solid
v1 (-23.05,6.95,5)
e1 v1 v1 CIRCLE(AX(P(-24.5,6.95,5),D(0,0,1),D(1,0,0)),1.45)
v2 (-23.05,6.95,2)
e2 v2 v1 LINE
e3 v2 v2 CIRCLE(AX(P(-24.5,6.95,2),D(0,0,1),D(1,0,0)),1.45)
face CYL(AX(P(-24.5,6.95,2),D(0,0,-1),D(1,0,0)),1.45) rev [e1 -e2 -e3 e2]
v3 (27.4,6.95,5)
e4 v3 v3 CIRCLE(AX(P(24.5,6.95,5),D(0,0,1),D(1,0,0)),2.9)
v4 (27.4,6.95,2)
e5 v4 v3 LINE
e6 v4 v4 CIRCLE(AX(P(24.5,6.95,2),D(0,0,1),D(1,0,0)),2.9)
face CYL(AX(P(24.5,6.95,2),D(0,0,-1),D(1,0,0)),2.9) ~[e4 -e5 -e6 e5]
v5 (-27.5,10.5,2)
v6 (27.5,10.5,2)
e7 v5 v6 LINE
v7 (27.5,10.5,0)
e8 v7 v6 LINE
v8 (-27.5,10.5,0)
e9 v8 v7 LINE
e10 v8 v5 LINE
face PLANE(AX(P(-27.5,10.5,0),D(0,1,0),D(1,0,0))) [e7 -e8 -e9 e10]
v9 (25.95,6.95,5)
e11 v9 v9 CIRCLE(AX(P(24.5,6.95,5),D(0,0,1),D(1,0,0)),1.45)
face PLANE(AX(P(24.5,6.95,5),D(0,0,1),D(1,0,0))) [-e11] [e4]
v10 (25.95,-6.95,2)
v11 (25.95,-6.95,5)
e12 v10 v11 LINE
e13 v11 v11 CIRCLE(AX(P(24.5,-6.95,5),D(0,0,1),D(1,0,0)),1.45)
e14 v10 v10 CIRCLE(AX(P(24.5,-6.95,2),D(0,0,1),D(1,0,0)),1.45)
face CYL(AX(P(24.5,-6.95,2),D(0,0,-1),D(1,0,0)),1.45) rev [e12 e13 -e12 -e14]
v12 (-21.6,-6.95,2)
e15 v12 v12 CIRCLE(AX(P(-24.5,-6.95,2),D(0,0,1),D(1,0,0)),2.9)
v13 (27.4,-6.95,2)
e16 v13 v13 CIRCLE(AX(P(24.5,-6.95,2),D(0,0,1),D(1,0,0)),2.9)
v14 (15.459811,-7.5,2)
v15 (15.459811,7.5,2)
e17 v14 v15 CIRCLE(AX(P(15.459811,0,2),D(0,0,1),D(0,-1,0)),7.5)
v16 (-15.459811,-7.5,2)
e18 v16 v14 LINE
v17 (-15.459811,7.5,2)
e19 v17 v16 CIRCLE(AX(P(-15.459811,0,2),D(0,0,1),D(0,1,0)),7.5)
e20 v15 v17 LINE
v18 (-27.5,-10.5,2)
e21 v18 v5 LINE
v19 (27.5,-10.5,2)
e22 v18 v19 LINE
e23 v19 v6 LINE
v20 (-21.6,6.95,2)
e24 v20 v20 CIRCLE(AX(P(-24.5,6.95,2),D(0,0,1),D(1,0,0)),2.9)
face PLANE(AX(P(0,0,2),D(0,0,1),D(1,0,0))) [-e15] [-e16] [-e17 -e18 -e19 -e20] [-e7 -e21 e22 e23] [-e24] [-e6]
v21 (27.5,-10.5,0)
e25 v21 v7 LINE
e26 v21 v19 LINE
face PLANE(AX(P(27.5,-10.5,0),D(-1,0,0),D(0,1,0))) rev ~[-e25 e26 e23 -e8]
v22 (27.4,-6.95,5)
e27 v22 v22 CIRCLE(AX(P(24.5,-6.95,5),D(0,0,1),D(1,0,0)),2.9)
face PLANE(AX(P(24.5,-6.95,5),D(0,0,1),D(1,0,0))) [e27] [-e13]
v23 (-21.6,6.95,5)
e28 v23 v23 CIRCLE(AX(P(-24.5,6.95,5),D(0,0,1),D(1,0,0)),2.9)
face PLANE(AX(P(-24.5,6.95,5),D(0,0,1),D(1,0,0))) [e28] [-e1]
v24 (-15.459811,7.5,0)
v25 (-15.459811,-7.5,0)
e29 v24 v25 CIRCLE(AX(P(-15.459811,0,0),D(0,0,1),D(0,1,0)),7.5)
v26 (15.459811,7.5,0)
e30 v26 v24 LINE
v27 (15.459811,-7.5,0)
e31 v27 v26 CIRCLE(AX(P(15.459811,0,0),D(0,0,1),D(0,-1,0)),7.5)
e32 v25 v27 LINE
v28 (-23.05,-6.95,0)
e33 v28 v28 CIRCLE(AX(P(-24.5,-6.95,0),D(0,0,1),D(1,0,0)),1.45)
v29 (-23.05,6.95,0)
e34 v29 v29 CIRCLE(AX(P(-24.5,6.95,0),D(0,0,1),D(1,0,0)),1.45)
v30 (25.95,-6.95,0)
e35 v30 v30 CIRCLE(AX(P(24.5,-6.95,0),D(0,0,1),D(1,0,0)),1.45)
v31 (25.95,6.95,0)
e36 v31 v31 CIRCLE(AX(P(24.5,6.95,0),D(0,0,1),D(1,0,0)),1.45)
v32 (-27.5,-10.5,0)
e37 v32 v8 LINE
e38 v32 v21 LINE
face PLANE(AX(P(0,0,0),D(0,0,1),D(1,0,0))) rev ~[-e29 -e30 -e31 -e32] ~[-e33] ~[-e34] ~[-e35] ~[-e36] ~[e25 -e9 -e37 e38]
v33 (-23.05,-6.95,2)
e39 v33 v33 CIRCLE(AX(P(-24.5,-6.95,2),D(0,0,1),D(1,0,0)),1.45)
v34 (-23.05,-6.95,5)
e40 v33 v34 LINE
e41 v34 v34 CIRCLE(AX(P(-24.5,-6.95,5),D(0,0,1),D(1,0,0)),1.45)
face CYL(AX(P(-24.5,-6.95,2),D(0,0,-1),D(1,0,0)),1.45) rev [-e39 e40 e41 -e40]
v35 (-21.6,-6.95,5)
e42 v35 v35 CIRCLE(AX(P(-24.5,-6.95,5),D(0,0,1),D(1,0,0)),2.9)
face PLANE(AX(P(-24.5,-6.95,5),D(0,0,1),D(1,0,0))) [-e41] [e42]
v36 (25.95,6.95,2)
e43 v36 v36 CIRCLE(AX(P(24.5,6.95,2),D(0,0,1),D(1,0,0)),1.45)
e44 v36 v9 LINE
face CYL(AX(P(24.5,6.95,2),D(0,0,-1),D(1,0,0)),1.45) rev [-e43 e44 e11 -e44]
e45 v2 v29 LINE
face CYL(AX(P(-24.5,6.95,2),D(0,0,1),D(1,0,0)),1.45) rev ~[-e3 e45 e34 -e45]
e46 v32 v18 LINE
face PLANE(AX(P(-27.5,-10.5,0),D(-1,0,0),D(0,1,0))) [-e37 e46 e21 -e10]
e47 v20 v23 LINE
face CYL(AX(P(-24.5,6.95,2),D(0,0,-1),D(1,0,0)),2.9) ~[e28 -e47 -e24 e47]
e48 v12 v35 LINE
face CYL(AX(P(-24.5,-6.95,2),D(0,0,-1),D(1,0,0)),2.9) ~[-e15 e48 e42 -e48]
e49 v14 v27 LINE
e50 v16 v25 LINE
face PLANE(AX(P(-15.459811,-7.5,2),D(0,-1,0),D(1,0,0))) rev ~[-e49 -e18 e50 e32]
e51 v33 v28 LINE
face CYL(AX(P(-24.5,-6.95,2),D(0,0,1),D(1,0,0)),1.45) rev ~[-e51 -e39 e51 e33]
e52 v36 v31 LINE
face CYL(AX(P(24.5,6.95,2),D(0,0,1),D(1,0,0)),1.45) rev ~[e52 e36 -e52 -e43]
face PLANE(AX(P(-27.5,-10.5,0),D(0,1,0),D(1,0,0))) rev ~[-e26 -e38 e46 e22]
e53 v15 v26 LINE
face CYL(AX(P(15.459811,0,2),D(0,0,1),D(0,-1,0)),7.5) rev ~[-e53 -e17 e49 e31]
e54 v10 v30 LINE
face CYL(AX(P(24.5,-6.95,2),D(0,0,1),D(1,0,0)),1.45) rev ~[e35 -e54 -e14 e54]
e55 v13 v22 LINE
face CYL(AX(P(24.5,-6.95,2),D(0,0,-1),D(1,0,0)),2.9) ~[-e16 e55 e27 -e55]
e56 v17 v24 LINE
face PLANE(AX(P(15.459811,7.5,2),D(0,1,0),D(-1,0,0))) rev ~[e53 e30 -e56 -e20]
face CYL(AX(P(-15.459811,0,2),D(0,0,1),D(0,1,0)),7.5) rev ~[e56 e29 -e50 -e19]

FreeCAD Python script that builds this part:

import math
import FreeCAD as App
import Part
import Sketcher


def add_polygon(sketch, points):
    """Adds a closed chain of lines whose ends are joined by coincident constraints."""
    first, n = sketch.GeometryCount, len(points)
    for a, b in zip(points, points[1:] + points[:1]):
        sketch.addGeometry(Part.LineSegment(App.Vector(*a, 0), App.Vector(*b, 0)), False)
    for i in range(n):
        sketch.addConstraint(Sketcher.Constraint("Coincident", first + i, 2, first + (i + 1) % n, 1))

doc = App.newDocument("Part")
body = doc.addObject("PartDesign::Body", "Body")

# Sketch on XY plane
sketch1 = doc.addObject("Sketcher::SketchObject", "Sketch")
body.addObject(sketch1)
sketch1.AttachmentSupport = (doc.XY_Plane, [""])
sketch1.MapMode = "FlatFace"
add_polygon(sketch1, [(-28, 10), (-28, -10), (28, -10), (28, 10)])  # lines 0-3
sketch1.addConstraint(Sketcher.Constraint("Vertical", 0))
sketch1.addConstraint(Sketcher.Constraint("Horizontal", 1))
sketch1.addConstraint(Sketcher.Constraint("Vertical", 2))
sketch1.addConstraint(Sketcher.Constraint("Horizontal", 3))
sketch1.addConstraint(Sketcher.Constraint("Symmetric", 0, 2, 2, 2, -1, 1))
sketch1.addConstraint(Sketcher.Constraint("DistanceX", 1, 1, 1, 2, 55.0))
sketch1.addConstraint(Sketcher.Constraint("DistanceY", 0, 2, 0, 1, 21.0))
pad1 = doc.addObject("PartDesign::Pad", "Pad")
body.addObject(pad1)
pad1.Profile = sketch1
pad1.Length = 2

# Sketch on XY plane
sketch2 = doc.addObject("Sketcher::SketchObject", "Sketch001")
body.addObject(sketch2)
sketch2.AttachmentSupport = (doc.XY_Plane, [""])
sketch2.MapMode = "FlatFace"
sketch2.AttachmentOffset = App.Placement(App.Vector(0, 0, 2), App.Rotation())
sketch2.addGeometry(Part.Circle(App.Vector(-24.5, 7, 0), App.Vector(0, 0, 1), 1.4), False)
sketch2.addGeometry(Part.Circle(App.Vector(24.5, 7, 0), App.Vector(0, 0, 1), 1.4), False)
sketch2.addGeometry(Part.Circle(App.Vector(24.5, -7, 0), App.Vector(0, 0, 1), 1.4), False)
sketch2.addGeometry(Part.Circle(App.Vector(-24.5, -7, 0), App.Vector(0, 0, 1), 1.4), False)
sketch2.addConstraint(Sketcher.Constraint("Equal", 0, 1))
sketch2.addConstraint(Sketcher.Constraint("Equal", 1, 2))
sketch2.addConstraint(Sketcher.Constraint("Equal", 2, 3))
sketch2.addConstraint(Sketcher.Constraint("Symmetric", 0, 3, 2, 3, -1, 1))
sketch2.addConstraint(Sketcher.Constraint("Symmetric", 1, 3, 3, 3, -1, 1))
sketch2.addConstraint(Sketcher.Constraint("Symmetric", 0, 3, 1, 3, -2))
sketch2.addConstraint(Sketcher.Constraint("Diameter", 0, 2.9))
sketch2.addConstraint(Sketcher.Constraint("DistanceX", 0, 3, 1, 3, 49.0))
sketch2.addConstraint(Sketcher.Constraint("DistanceY", 2, 3, 1, 3, 13.9))
pocket1 = doc.addObject("PartDesign::Pocket", "Pocket")
body.addObject(pocket1)
pocket1.Profile = sketch2
pocket1.Type = "ThroughAll"

# Sketch on XY plane
sketch3 = doc.addObject("Sketcher::SketchObject", "Sketch002")
body.addObject(sketch3)
sketch3.AttachmentSupport = (doc.XY_Plane, [""])
sketch3.MapMode = "FlatFace"
sketch3.AttachmentOffset = App.Placement(App.Vector(0, 0, 2), App.Rotation())
sketch3.addGeometry(Part.Circle(App.Vector(-24.5, 7, 0), App.Vector(0, 0, 1), 2.9), False)
sketch3.addGeometry(Part.Circle(App.Vector(-24.5, 7, 0), App.Vector(0, 0, 1), 1.4), False)
sketch3.addGeometry(Part.Circle(App.Vector(24.5, 7, 0), App.Vector(0, 0, 1), 2.9), False)
sketch3.addGeometry(Part.Circle(App.Vector(24.5, 7, 0), App.Vector(0, 0, 1), 1.4), False)
sketch3.addGeometry(Part.Circle(App.Vector(24.5, -7, 0), App.Vector(0, 0, 1), 2.9), False)
sketch3.addGeometry(Part.Circle(App.Vector(24.5, -7, 0), App.Vector(0, 0, 1), 1.4), False)
sketch3.addGeometry(Part.Circle(App.Vector(-24.5, -7, 0), App.Vector(0, 0, 1), 2.9), False)
sketch3.addGeometry(Part.Circle(App.Vector(-24.5, -7, 0), App.Vector(0, 0, 1), 1.4), False)
sketch3.addConstraint(Sketcher.Constraint("Coincident", 1, 3, 0, 3))
sketch3.addConstraint(Sketcher.Constraint("Coincident", 3, 3, 2, 3))
sketch3.addConstraint(Sketcher.Constraint("Coincident", 5, 3, 4, 3))
sketch3.addConstraint(Sketcher.Constraint("Coincident", 7, 3, 6, 3))
sketch3.addConstraint(Sketcher.Constraint("Equal", 0, 2))
sketch3.addConstraint(Sketcher.Constraint("Equal", 1, 3))
sketch3.addConstraint(Sketcher.Constraint("Equal", 2, 4))
sketch3.addConstraint(Sketcher.Constraint("Equal", 3, 5))
sketch3.addConstraint(Sketcher.Constraint("Equal", 4, 6))
sketch3.addConstraint(Sketcher.Constraint("Equal", 5, 7))
sketch3.addConstraint(Sketcher.Constraint("Symmetric", 0, 3, 4, 3, -1, 1))
sketch3.addConstraint(Sketcher.Constraint("Symmetric", 2, 3, 6, 3, -1, 1))
sketch3.addConstraint(Sketcher.Constraint("Symmetric", 0, 3, 2, 3, -2))
sketch3.addConstraint(Sketcher.Constraint("Diameter", 0, 5.8))
sketch3.addConstraint(Sketcher.Constraint("Diameter", 1, 2.9))
sketch3.addConstraint(Sketcher.Constraint("DistanceX", 0, 3, 2, 3, 49.0))
sketch3.addConstraint(Sketcher.Constraint("DistanceY", 4, 3, 2, 3, 13.9))
pad2 = doc.addObject("PartDesign::Pad", "Pad001")
body.addObject(pad2)
pad2.Profile = sketch3
pad2.Length = 3

# Sketch on XY plane
sketch4 = doc.addObject("Sketcher::SketchObject", "Sketch003")
body.addObject(sketch4)
sketch4.AttachmentSupport = (doc.XY_Plane, [""])
sketch4.MapMode = "FlatFace"
sketch4.AttachmentOffset = App.Placement(App.Vector(0, 0, 2), App.Rotation())
sketch4.addGeometry(Part.ArcOfCircle(Part.Circle(App.Vector(-15, 0, 0), App.Vector(0, 0, 1), 8), math.radians(90), math.radians(270)), False)
sketch4.addGeometry(Part.LineSegment(App.Vector(-15, -8, 0), App.Vector(15, -8, 0)), False)
sketch4.addGeometry(Part.ArcOfCircle(Part.Circle(App.Vector(15, 0, 0), App.Vector(0, 0, 1), 8), math.radians(-90), math.radians(90)), False)
sketch4.addGeometry(Part.LineSegment(App.Vector(15, 8, 0), App.Vector(-15, 8, 0)), False)
sketch4.addConstraint(Sketcher.Constraint("Tangent", 0, 2, 1, 1))
sketch4.addConstraint(Sketcher.Constraint("Tangent", 1, 2, 2, 1))
sketch4.addConstraint(Sketcher.Constraint("Tangent", 2, 2, 3, 1))
sketch4.addConstraint(Sketcher.Constraint("Tangent", 3, 2, 0, 1))
sketch4.addConstraint(Sketcher.Constraint("Horizontal", 1))
sketch4.addConstraint(Sketcher.Constraint("Horizontal", 3))
sketch4.addConstraint(Sketcher.Constraint("Symmetric", 0, 3, 2, 3, -1, 1))
sketch4.addConstraint(Sketcher.Constraint("Radius", 0, 7.5))
sketch4.addConstraint(Sketcher.Constraint("DistanceX", 1, 1, 1, 2, 30.919622))
pocket2 = doc.addObject("PartDesign::Pocket", "Pocket001")
body.addObject(pocket2)
pocket2.Profile = sketch4
pocket2.Type = "ThroughAll"

doc.recompute()
